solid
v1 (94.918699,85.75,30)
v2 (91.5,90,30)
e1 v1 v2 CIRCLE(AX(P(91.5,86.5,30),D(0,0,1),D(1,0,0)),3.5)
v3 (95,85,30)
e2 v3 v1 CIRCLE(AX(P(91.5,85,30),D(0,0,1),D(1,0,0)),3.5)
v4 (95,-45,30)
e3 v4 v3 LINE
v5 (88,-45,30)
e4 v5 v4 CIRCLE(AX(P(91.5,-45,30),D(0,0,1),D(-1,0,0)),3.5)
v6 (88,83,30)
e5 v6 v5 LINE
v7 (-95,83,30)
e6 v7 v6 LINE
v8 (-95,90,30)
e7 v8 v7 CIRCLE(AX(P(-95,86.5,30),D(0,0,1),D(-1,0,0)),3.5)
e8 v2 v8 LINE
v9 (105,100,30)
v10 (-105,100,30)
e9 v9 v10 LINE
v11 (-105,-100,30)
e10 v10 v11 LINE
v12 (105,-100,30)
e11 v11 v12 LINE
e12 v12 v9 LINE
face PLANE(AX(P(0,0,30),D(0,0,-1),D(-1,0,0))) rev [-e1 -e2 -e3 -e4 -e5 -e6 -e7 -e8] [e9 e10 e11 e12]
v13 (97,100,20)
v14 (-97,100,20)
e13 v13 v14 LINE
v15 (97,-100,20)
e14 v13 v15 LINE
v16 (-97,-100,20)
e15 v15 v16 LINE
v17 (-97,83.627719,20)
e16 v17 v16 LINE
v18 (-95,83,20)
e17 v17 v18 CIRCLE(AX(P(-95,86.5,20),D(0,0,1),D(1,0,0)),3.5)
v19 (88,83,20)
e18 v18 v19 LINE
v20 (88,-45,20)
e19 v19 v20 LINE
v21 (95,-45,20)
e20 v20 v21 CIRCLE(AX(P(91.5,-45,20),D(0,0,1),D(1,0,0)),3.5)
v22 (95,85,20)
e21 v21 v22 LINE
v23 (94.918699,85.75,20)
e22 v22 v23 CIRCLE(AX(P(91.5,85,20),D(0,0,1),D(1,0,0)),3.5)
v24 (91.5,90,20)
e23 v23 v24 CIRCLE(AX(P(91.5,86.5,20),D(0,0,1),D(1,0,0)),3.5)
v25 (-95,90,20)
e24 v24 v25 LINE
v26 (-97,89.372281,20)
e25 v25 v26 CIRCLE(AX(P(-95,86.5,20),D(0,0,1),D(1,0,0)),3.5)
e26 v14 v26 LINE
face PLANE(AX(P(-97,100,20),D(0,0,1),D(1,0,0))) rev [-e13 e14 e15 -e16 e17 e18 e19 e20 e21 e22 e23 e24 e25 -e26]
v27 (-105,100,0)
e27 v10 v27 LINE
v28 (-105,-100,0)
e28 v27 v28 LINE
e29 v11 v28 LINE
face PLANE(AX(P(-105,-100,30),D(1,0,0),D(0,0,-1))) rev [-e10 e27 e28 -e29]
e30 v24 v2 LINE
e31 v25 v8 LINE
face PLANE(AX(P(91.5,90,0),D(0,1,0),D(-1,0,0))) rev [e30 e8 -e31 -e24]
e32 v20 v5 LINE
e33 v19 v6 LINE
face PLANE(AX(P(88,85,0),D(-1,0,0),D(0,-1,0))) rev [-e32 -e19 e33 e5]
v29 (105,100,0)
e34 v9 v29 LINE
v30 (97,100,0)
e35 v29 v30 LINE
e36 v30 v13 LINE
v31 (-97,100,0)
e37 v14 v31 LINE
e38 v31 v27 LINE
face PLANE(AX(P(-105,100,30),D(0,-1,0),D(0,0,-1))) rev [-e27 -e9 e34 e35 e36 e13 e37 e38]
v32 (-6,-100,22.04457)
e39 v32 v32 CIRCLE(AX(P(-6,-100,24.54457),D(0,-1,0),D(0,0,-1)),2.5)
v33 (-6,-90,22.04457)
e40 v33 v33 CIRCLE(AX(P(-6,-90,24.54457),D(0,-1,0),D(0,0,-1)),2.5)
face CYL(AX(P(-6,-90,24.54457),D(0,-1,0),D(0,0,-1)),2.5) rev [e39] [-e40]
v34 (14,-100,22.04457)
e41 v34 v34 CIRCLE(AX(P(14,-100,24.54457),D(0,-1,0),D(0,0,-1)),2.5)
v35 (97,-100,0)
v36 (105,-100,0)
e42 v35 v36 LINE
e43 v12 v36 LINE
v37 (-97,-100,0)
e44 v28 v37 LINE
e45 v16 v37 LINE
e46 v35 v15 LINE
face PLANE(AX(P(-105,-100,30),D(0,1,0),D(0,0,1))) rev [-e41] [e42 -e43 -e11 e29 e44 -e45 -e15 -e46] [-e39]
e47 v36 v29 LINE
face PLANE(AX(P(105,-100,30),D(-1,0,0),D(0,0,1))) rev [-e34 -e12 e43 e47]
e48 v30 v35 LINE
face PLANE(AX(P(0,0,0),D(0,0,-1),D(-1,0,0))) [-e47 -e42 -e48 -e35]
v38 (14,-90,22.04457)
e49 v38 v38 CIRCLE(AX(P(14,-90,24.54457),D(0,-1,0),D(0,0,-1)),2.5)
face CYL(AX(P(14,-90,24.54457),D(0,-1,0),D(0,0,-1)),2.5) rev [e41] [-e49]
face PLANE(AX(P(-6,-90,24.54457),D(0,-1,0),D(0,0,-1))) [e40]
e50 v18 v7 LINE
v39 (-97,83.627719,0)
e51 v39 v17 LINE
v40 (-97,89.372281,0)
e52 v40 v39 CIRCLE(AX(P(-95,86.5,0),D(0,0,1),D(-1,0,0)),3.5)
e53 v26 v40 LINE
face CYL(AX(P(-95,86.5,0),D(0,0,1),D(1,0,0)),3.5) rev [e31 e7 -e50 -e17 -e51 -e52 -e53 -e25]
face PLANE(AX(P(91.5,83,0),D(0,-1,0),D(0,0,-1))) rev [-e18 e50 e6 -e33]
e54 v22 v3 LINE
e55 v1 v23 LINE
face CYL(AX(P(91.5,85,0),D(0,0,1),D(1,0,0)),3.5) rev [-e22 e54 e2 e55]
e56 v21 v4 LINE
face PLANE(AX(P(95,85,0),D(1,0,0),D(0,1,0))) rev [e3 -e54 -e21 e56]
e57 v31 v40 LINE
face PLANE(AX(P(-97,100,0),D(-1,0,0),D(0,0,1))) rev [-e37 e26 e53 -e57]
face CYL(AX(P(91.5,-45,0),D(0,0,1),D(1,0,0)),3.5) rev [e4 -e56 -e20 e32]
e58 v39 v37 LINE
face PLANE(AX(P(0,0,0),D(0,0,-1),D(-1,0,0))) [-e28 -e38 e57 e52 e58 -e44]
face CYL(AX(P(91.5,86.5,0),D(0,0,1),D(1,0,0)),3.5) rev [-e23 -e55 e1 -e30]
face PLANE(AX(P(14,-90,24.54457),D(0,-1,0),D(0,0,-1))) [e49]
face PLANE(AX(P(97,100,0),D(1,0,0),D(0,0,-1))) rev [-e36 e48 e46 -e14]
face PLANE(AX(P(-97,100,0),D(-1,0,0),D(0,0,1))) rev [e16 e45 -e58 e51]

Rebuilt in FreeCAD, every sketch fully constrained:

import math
import FreeCAD as App
import Part
import Sketcher

V = App.Vector
Q = App.Units.Quantity

doc = App.newDocument("Part")
params = doc.addObject("Spreadsheet::Sheet", "Params")
for row, (alias, value) in enumerate([
    ("sketch1_width", "210 mm"),
    ("sketch1_height", "200 mm"),
    ("pad1_length", "30 mm"),
    ("sketch2_width", "194 mm"),
    ("sketch2_height", "20 mm"),
    ("sketch3_radius", "3.5 mm"),
    ("sketch3_height", "130 mm"),
    ("sketch4_radius", "3.5 mm"),
    ("sketch4_width", "186.5 mm"),
    ("sketch5_diameter", "5 mm"),
    ("pocket4_length", "10 mm"),
], start=1):
    params.set(f"A{row}", alias)
    params.set(f"B{row}", "=" + value)
    params.setAlias(f"B{row}", alias)

body = doc.addObject("PartDesign::Body", "Body")

# Sketch on XY plane
sketch1 = doc.addObject("Sketcher::SketchObject", "Sketch")
body.addObject(sketch1)
sketch1.AttachmentSupport = (doc.XY_Plane, [""])
sketch1.MapMode = "FlatFace"
sketch1.addGeometry(Part.LineSegment(V(-105, 100, 0), V(-105, -100, 0)), False)
sketch1.addGeometry(Part.LineSegment(V(-105, -100, 0), V(105, -100, 0)), False)
sketch1.addGeometry(Part.LineSegment(V(105, -100, 0), V(105, 100, 0)), False)
sketch1.addGeometry(Part.LineSegment(V(105, 100, 0), V(-105, 100, 0)), False)
sketch1.addConstraint(Sketcher.Constraint("Coincident", 0, 2, 1, 1))
sketch1.addConstraint(Sketcher.Constraint("Coincident", 1, 2, 2, 1))
sketch1.addConstraint(Sketcher.Constraint("Coincident", 2, 2, 3, 1))
sketch1.addConstraint(Sketcher.Constraint("Coincident", 3, 2, 0, 1))
sketch1.addConstraint(Sketcher.Constraint("Vertical", 0))
sketch1.addConstraint(Sketcher.Constraint("Horizontal", 1))
sketch1.addConstraint(Sketcher.Constraint("Vertical", 2))
sketch1.addConstraint(Sketcher.Constraint("Horizontal", 3))
sketch1.addConstraint(Sketcher.Constraint("Symmetric", 0, 2, 2, 2, -1, 1))
sketch1.addConstraint(Sketcher.Constraint("DistanceX", 1, 1, 1, 2, Q("210 mm")))
sketch1.addConstraint(Sketcher.Constraint("DistanceY", 0, 2, 0, 1, Q("200 mm")))
sketch1.setExpression("Constraints[9]", "Params.sketch1_width")
sketch1.setExpression("Constraints[10]", "Params.sketch1_height")
pad1 = doc.addObject("PartDesign::Pad", "Pad")
body.addObject(pad1)
pad1.Profile = sketch1
pad1.setExpression("Length", "Params.pad1_length")

# Sketch on XZ plane
sketch2 = doc.addObject("Sketcher::SketchObject", "Sketch001")
body.addObject(sketch2)
sketch2.AttachmentSupport = (doc.XZ_Plane, [""])
sketch2.MapMode = "FlatFace"
sketch2.AttachmentOffset = App.Placement(V(0, 0, 100), App.Rotation())
sketch2.addGeometry(Part.LineSegment(V(97, 0, 0), V(97, 20, 0)), False)
sketch2.addGeometry(Part.LineSegment(V(97, 20, 0), V(-97, 20, 0)), False)
sketch2.addGeometry(Part.LineSegment(V(-97, 20, 0), V(-97, 0, 0)), False)
sketch2.addGeometry(Part.LineSegment(V(-97, 0, 0), V(97, 0, 0)), False)
sketch2.addConstraint(Sketcher.Constraint("Coincident", 0, 2, 1, 1))
sketch2.addConstraint(Sketcher.Constraint("Coincident", 1, 2, 2, 1))
sketch2.addConstraint(Sketcher.Constraint("Coincident", 2, 2, 3, 1))
sketch2.addConstraint(Sketcher.Constraint("Coincident", 3, 2, 0, 1))
sketch2.addConstraint(Sketcher.Constraint("Vertical", 0))
sketch2.addConstraint(Sketcher.Constraint("Horizontal", 1))
sketch2.addConstraint(Sketcher.Constraint("Vertical", 2))
sketch2.addConstraint(Sketcher.Constraint("Horizontal", 3))
sketch2.addConstraint(Sketcher.Constraint("Symmetric", 2, 2, 3, 2, -1, 1))
sketch2.addConstraint(Sketcher.Constraint("DistanceX", 1, 2, 1, 1, Q("194 mm")))
sketch2.addConstraint(Sketcher.Constraint("DistanceY", 0, 1, 0, 2, Q("20 mm")))
sketch2.setExpression("Constraints[9]", "Params.sketch2_width")
sketch2.setExpression("Constraints[10]", "Params.sketch2_height")
pocket1 = doc.addObject("PartDesign::Pocket", "Pocket")
body.addObject(pocket1)
pocket1.Profile = sketch2
pocket1.Type = "ThroughAll"

# Sketch on XY plane
sketch3 = doc.addObject("Sketcher::SketchObject", "Sketch002")
body.addObject(sketch3)
sketch3.AttachmentSupport = (doc.XY_Plane, [""])
sketch3.MapMode = "FlatFace"
sketch3.AttachmentOffset = App.Placement(V(0, 0, 30), App.Rotation())
sketch3.addGeometry(Part.LineSegment(V(88, 85, 0), V(88, -45, 0)), False)
sketch3.addGeometry(Part.ArcOfCircle(Part.Circle(V(91.5, -45, 0), V(0, 0, 1), 3.5), math.radians(180), math.radians(360)), False)
sketch3.addGeometry(Part.LineSegment(V(95, -45, 0), V(95, 85, 0)), False)
sketch3.addGeometry(Part.ArcOfCircle(Part.Circle(V(91.5, 85, 0), V(0, 0, 1), 3.5), math.radians(0), math.radians(180)), False)
sketch3.addConstraint(Sketcher.Constraint("Tangent", 0, 2, 1, 1))
sketch3.addConstraint(Sketcher.Constraint("Tangent", 1, 2, 2, 1))
sketch3.addConstraint(Sketcher.Constraint("Tangent", 2, 2, 3, 1))
sketch3.addConstraint(Sketcher.Constraint("Tangent", 3, 2, 0, 1))
sketch3.addConstraint(Sketcher.Constraint("Vertical", 0))
sketch3.addConstraint(Sketcher.Constraint("Vertical", 2))
sketch3.addConstraint(Sketcher.Constraint("Radius", 1, Q("3.5 mm")))
sketch3.addConstraint(Sketcher.Constraint("DistanceY", 0, 2, 0, 1, Q("130 mm")))
sketch3.addConstraint(Sketcher.Constraint("DistanceY", 1, 3, -1, 1, Q("45 mm")))
sketch3.addConstraint(Sketcher.Constraint("DistanceX", -1, 1, 0, 2, Q("88 mm")))
sketch3.setExpression("Constraints[6]", "Params.sketch3_radius")
sketch3.setExpression("Constraints[7]", "Params.sketch3_height")
pocket2 = doc.addObject("PartDesign::Pocket", "Pocket001")
body.addObject(pocket2)
pocket2.Profile = sketch3
pocket2.Type = "ThroughAll"

# Sketch on XY plane
sketch4 = doc.addObject("Sketcher::SketchObject", "Sketch003")
body.addObject(sketch4)
sketch4.AttachmentSupport = (doc.XY_Plane, [""])
sketch4.MapMode = "FlatFace"
sketch4.AttachmentOffset = App.Placement(V(0, 0, 30), App.Rotation())
sketch4.addGeometry(Part.LineSegment(V(-95, 83, 0), V(91.5, 83, 0)), False)
sketch4.addGeometry(Part.ArcOfCircle(Part.Circle(V(91.5, 86.5, 0), V(0, 0, 1), 3.5), math.radians(-90), math.radians(90)), False)
sketch4.addGeometry(Part.LineSegment(V(91.5, 90, 0), V(-95, 90, 0)), False)
sketch4.addGeometry(Part.ArcOfCircle(Part.Circle(V(-95, 86.5, 0), V(0, 0, 1), 3.5), math.radians(90), math.radians(270)), False)
sketch4.addConstraint(Sketcher.Constraint("Tangent", 0, 2, 1, 1))
sketch4.addConstraint(Sketcher.Constraint("Tangent", 1, 2, 2, 1))
sketch4.addConstraint(Sketcher.Constraint("Tangent", 2, 2, 3, 1))
sketch4.addConstraint(Sketcher.Constraint("Tangent", 3, 2, 0, 1))
sketch4.addConstraint(Sketcher.Constraint("Horizontal", 0))
sketch4.addConstraint(Sketcher.Constraint("Horizontal", 2))
sketch4.addConstraint(Sketcher.Constraint("Radius", 1, Q("3.5 mm")))
sketch4.addConstraint(Sketcher.Constraint("DistanceX", 0, 1, 0, 2, Q("186.5 mm")))
sketch4.addConstraint(Sketcher.Constraint("DistanceX", 3, 3, -1, 1, Q("95 mm")))
sketch4.addConstraint(Sketcher.Constraint("DistanceY", -1, 1, 0, 2, Q("83 mm")))
sketch4.setExpression("Constraints[6]", "Params.sketch4_radius")
sketch4.setExpression("Constraints[7]", "Params.sketch4_width")
pocket3 = doc.addObject("PartDesign::Pocket", "Pocket002")
body.addObject(pocket3)
pocket3.Profile = sketch4
pocket3.Type = "ThroughAll"

# Sketch on XZ plane
sketch5 = doc.addObject("Sketcher::SketchObject", "Sketch004")
body.addObject(sketch5)
sketch5.AttachmentSupport = (doc.XZ_Plane, [""])
sketch5.MapMode = "FlatFace"
sketch5.AttachmentOffset = App.Placement(V(0, 0, 100), App.Rotation())
sketch5.addGeometry(Part.Circle(V(-6, 24.5, 0), V(0, 0, 1), 2.5), False)
sketch5.addGeometry(Part.Circle(V(14, 24.5, 0), V(0, 0, 1), 2.5), False)
sketch5.addConstraint(Sketcher.Constraint("Equal", 0, 1))
sketch5.addConstraint(Sketcher.Constraint("Horizontal", 0, 3, 1, 3))
sketch5.addConstraint(Sketcher.Constraint("Diameter", 0, Q("5 mm")))
sketch5.addConstraint(Sketcher.Constraint("DistanceX", 0, 3, -1, 1, Q("6 mm")))
sketch5.addConstraint(Sketcher.Constraint("DistanceX", -1, 1, 1, 3, Q("14 mm")))
sketch5.addConstraint(Sketcher.Constraint("DistanceY", -1, 1, 0, 3, Q("24.54457 mm")))
sketch5.setExpression("Constraints[2]", "Params.sketch5_diameter")
pocket4 = doc.addObject("PartDesign::Pocket", "Pocket003")
body.addObject(pocket4)
pocket4.Profile = sketch5
pocket4.setExpression("Length", "Params.pocket4_length")

doc.recompute()
